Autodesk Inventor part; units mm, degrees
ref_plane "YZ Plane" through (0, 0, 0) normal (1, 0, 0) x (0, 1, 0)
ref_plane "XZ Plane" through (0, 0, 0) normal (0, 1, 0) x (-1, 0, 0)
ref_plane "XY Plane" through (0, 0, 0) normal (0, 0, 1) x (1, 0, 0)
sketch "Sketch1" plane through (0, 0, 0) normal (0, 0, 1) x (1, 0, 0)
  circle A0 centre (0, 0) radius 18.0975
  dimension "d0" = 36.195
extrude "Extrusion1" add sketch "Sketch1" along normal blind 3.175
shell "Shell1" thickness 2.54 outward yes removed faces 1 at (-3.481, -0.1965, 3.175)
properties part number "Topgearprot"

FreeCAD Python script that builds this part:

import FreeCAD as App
import Part
import Sketcher
from FreeCAD import Vector
Q = App.Units.Quantity


def faces_at(feature, points):
    """Names of the faces that lie closest to the given points."""
    faces = feature.Shape.Faces
    near = lambda p: min(range(len(faces)), key=lambda i: faces[i].distToShape(Part.Vertex(*p))[0])
    return sorted({f"Face{near(p) + 1}" for p in points})

doc = App.newDocument("Part")
body = doc.addObject("PartDesign::Body", "Body")

# Sketch on XY plane
sketch1 = doc.addObject("Sketcher::SketchObject", "Sketch")
body.addObject(sketch1)
sketch1.AttachmentSupport = (doc.XY_Plane, [""])
sketch1.MapMode = "FlatFace"
sketch1.addGeometry(Part.Circle(Vector(0, 0, 0), Vector(0, 0, 1), 18.0975), False)
sketch1.addConstraint(Sketcher.Constraint("Coincident", 0, 3, -1, 1))
sketch1.addConstraint(Sketcher.Constraint("Diameter", 0, Q("1.425 in")))
pad1 = doc.addObject("PartDesign::Pad", "Pad")
body.addObject(pad1)
pad1.Profile = sketch1
pad1.Length = Q("0.125 in")
doc.recompute()

thickness = doc.addObject("PartDesign::Thickness", "Thickness")
body.addObject(thickness)
thickness.Base = (pad1, faces_at(pad1, [(-3.481, -0.197, 3.175)]))
thickness.Value = Q("0.1 in")
thickness.Reversed = False
thickness.Join = "Intersection"

doc.recompute()
